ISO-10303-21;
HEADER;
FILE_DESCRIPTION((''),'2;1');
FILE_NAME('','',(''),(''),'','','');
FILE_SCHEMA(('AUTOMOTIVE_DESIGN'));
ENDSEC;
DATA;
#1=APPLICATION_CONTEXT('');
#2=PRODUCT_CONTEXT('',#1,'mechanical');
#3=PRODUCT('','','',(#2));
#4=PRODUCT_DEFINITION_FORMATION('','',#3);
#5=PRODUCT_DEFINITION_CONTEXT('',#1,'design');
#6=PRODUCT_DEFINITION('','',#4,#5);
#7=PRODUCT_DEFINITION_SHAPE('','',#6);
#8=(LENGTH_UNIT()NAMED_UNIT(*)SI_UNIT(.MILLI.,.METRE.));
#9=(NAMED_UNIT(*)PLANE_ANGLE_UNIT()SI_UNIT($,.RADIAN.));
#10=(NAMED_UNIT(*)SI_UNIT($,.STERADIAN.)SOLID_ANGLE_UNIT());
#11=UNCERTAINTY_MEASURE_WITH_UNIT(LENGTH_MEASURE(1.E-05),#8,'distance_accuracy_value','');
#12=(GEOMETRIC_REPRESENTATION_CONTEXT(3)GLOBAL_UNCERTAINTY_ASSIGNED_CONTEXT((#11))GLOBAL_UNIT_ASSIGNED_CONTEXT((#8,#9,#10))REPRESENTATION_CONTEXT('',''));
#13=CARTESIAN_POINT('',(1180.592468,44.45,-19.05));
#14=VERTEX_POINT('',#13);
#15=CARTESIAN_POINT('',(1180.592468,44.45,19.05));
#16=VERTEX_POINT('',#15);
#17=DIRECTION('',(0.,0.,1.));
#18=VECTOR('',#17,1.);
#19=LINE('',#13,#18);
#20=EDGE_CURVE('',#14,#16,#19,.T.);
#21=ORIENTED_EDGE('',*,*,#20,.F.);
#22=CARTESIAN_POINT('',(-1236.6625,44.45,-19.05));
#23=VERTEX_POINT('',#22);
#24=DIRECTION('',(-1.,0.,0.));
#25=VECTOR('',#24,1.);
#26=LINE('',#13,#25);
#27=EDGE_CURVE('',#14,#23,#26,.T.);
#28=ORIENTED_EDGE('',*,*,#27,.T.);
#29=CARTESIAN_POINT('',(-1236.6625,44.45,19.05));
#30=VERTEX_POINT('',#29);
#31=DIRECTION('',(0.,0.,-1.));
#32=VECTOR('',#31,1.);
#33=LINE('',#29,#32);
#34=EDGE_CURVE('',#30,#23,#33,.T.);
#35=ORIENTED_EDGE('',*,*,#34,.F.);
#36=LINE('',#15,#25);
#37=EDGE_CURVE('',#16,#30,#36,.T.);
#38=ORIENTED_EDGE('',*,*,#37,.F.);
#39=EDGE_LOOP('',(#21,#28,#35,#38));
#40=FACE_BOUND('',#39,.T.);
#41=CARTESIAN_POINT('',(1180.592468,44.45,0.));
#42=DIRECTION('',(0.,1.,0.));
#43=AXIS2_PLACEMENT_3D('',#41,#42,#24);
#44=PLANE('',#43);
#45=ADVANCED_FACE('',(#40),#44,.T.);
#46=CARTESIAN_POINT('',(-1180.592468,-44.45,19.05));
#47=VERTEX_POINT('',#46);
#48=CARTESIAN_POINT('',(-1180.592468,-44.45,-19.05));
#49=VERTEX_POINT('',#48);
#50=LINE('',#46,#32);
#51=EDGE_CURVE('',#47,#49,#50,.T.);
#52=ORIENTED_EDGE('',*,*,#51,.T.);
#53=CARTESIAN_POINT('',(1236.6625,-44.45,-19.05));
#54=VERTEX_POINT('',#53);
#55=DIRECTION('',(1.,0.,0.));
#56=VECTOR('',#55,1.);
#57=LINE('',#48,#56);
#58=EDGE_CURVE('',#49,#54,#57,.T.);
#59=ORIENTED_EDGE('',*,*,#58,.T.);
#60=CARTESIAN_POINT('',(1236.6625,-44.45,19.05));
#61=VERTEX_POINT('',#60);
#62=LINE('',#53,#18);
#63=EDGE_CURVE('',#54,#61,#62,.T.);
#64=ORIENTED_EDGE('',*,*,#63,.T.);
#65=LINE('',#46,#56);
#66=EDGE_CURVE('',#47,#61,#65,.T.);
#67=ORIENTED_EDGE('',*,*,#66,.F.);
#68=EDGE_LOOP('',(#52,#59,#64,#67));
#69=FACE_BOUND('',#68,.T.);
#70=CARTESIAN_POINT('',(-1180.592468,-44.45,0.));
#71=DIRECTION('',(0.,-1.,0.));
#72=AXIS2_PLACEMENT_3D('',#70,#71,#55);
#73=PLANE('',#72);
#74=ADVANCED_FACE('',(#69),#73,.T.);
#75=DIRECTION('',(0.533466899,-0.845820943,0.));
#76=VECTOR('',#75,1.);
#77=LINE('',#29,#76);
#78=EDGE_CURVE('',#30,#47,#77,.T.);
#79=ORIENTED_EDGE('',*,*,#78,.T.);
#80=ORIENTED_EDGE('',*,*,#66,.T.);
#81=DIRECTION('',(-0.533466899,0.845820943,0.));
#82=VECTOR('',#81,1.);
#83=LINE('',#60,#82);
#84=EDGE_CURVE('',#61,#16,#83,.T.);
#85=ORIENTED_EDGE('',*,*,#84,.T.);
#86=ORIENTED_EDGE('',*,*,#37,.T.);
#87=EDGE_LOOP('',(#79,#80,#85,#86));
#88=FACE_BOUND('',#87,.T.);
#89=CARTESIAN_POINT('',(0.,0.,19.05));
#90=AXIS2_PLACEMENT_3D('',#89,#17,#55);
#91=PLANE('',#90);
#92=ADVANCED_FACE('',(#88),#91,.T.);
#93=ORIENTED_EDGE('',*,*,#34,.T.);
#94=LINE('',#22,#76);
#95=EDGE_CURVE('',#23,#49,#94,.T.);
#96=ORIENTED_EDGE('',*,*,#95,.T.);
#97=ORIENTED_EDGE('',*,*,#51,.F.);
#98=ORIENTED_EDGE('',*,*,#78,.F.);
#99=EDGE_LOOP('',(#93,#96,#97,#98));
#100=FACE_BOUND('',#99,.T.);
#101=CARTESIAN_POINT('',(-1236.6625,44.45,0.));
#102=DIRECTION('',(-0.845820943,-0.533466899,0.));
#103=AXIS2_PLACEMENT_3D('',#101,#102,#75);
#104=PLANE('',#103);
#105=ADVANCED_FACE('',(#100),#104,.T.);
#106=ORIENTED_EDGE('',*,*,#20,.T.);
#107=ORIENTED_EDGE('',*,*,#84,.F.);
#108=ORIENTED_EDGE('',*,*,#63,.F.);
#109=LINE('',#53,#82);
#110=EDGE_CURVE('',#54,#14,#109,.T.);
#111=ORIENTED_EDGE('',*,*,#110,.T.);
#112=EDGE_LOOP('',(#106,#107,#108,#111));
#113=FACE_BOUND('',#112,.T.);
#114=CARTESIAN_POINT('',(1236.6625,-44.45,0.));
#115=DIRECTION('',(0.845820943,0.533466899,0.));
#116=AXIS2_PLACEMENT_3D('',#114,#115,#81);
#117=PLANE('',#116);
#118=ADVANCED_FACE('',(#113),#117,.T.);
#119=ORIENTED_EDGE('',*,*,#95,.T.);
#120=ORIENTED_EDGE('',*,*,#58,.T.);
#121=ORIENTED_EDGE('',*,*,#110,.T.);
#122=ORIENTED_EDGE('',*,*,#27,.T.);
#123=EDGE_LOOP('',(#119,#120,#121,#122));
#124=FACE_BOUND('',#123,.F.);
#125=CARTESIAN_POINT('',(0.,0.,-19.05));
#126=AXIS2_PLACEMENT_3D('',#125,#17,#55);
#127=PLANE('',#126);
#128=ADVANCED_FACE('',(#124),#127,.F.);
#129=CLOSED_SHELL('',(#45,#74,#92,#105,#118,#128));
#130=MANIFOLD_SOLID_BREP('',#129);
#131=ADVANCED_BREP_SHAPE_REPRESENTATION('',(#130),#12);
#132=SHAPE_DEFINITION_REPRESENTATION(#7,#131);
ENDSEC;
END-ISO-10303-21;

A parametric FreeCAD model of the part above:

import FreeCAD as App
import Part
import Sketcher
from FreeCAD import Vector
Q = App.Units.Quantity


def add_polygon(sketch, points):
    """Adds a closed chain of lines whose ends are joined by coincident constraints."""
    first, n = sketch.GeometryCount, len(points)
    for a, b in zip(points, points[1:] + points[:1]):
        sketch.addGeometry(Part.LineSegment(App.Vector(*a, 0), App.Vector(*b, 0)), False)
    for i in range(n):
        sketch.addConstraint(Sketcher.Constraint("Coincident", first + i, 2, first + (i + 1) % n, 1))

doc = App.newDocument("Part")
body = doc.addObject("PartDesign::Body", "Body")

sketch1 = doc.addObject("Sketcher::SketchObject", "Sketch")
body.addObject(sketch1)
sketch1.AttachmentSupport = (doc.XY_Plane, [""])
sketch1.MapMode = "FlatFace"
add_polygon(sketch1, [(-1181, -44), (1237, -44), (1181, 44), (-1237, 44)])
sketch1.addConstraint([
    Sketcher.Constraint("Horizontal", 0),
    Sketcher.Constraint("Horizontal", 2),
    Sketcher.Constraint("Symmetric", 0, 2, 2, 2, -1, 1),
    Sketcher.Constraint("Parallel", 1, 3),
    Sketcher.Constraint("DistanceY", 0, 2, 1, 2, Q("3.5 in")),
    Sketcher.Constraint("Angle", 1, Q("122.24 deg")),
    Sketcher.Constraint("DistanceX", -1, 1, 0, 2, Q("48.6875 in")),
])
pad1 = doc.addObject("PartDesign::Pad", "Pad")
body.addObject(pad1)
pad1.Profile = sketch1
pad1.Length = Q("1.5 in")
pad1.Midplane = True

doc.recompute()
